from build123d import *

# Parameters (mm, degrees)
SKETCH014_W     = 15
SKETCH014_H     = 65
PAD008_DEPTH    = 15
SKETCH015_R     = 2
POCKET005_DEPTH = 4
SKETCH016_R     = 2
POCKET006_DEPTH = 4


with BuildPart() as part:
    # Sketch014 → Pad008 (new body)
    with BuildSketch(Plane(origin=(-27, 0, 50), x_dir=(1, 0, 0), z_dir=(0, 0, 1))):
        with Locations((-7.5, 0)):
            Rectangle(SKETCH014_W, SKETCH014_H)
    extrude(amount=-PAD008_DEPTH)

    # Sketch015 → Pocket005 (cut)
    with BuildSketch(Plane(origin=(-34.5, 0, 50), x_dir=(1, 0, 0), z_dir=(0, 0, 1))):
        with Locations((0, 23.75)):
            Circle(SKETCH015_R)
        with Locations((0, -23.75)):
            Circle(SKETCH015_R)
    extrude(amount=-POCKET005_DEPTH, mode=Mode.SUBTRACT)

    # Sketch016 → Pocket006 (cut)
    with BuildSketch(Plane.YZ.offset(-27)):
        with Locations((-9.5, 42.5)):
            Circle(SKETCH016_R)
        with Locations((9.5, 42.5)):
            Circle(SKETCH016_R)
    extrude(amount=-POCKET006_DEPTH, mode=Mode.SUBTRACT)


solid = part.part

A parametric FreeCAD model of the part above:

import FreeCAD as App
import Part
import Sketcher

doc = App.newDocument("Part")
body = doc.addObject("PartDesign::Body", "Body")

# Sketch on XY plane
sketch1 = doc.addObject("Sketcher::SketchObject", "Sketch")
body.addObject(sketch1)
sketch1.AttachmentSupport = (doc.XY_Plane, [""])
sketch1.MapMode = "FlatFace"
sketch1.AttachmentOffset = App.Placement(App.Vector(0, 0, 50), App.Rotation())
sketch1.addGeometry([
    Part.LineSegment(App.Vector(-42, 32.5, 0), App.Vector(-42, -32.5, 0)),
    Part.LineSegment(App.Vector(-42, -32.5, 0), App.Vector(-27, -32.5, 0)),
    Part.LineSegment(App.Vector(-27, -32.5, 0), App.Vector(-27, 32.5, 0)),
    Part.LineSegment(App.Vector(-27, 32.5, 0), App.Vector(-42, 32.5, 0)),
], False)
sketch1.addConstraint([
    Sketcher.Constraint("Coincident", 0, 2, 1, 1),
    Sketcher.Constraint("Coincident", 1, 2, 2, 1),
    Sketcher.Constraint("Coincident", 2, 2, 3, 1),
    Sketcher.Constraint("Coincident", 3, 2, 0, 1),
    Sketcher.Constraint("Vertical", 0),
    Sketcher.Constraint("Horizontal", 1),
    Sketcher.Constraint("Vertical", 2),
    Sketcher.Constraint("Horizontal", 3),
    Sketcher.Constraint("DistanceX", 1, 1, 1, 2, 15.0),
    Sketcher.Constraint("DistanceY", 0, 2, 0, 1, 65.0),
    Sketcher.Constraint("DistanceX", 0, 2, -1, 1, 42.0),
    Sketcher.Constraint("DistanceY", 0, 2, -1, 1, 32.5),
])
pad1 = doc.addObject("PartDesign::Pad", "Pad")
body.addObject(pad1)
pad1.Profile = sketch1
pad1.Length = 15
pad1.Reversed = True

# Sketch on XY plane
sketch2 = doc.addObject("Sketcher::SketchObject", "Sketch001")
body.addObject(sketch2)
sketch2.AttachmentSupport = (doc.XY_Plane, [""])
sketch2.MapMode = "FlatFace"
sketch2.AttachmentOffset = App.Placement(App.Vector(0, 0, 50), App.Rotation())
sketch2.addGeometry([
    Part.Circle(App.Vector(-34.5, 23.75, 0), App.Vector(0, 0, 1), 2),
    Part.Circle(App.Vector(-34.5, -23.75, 0), App.Vector(0, 0, 1), 2),
], False)
sketch2.addConstraint([
    Sketcher.Constraint("Equal", 0, 1),
    Sketcher.Constraint("Symmetric", 0, 3, 1, 3, -1),
    Sketcher.Constraint("Diameter", 0, 4.0),
    Sketcher.Constraint("DistanceX", 0, 3, -1, 1, 34.5),
    Sketcher.Constraint("DistanceY", 1, 3, 0, 3, 47.5),
])
pocket1 = doc.addObject("PartDesign::Pocket", "Pocket")
body.addObject(pocket1)
pocket1.Profile = sketch2
pocket1.Length = 4

# Sketch on YZ plane
sketch3 = doc.addObject("Sketcher::SketchObject", "Sketch002")
body.addObject(sketch3)
sketch3.AttachmentSupport = (doc.YZ_Plane, [""])
sketch3.MapMode = "FlatFace"
sketch3.AttachmentOffset = App.Placement(App.Vector(0, 0, -27), App.Rotation())
sketch3.addGeometry([
    Part.Circle(App.Vector(-9.5, 42.5, 0), App.Vector(0, 0, 1), 2),
    Part.Circle(App.Vector(9.5, 42.5, 0), App.Vector(0, 0, 1), 2),
], False)
sketch3.addConstraint([
    Sketcher.Constraint("Equal", 0, 1),
    Sketcher.Constraint("Symmetric", 0, 3, 1, 3, -2),
    Sketcher.Constraint("Diameter", 0, 4.0),
    Sketcher.Constraint("DistanceX", 0, 3, 1, 3, 19.0),
    Sketcher.Constraint("DistanceY", -1, 1, 0, 3, 42.5),
])
pocket2 = doc.addObject("PartDesign::Pocket", "Pocket001")
body.addObject(pocket2)
pocket2.Profile = sketch3
pocket2.Length = 4

doc.recompute()
